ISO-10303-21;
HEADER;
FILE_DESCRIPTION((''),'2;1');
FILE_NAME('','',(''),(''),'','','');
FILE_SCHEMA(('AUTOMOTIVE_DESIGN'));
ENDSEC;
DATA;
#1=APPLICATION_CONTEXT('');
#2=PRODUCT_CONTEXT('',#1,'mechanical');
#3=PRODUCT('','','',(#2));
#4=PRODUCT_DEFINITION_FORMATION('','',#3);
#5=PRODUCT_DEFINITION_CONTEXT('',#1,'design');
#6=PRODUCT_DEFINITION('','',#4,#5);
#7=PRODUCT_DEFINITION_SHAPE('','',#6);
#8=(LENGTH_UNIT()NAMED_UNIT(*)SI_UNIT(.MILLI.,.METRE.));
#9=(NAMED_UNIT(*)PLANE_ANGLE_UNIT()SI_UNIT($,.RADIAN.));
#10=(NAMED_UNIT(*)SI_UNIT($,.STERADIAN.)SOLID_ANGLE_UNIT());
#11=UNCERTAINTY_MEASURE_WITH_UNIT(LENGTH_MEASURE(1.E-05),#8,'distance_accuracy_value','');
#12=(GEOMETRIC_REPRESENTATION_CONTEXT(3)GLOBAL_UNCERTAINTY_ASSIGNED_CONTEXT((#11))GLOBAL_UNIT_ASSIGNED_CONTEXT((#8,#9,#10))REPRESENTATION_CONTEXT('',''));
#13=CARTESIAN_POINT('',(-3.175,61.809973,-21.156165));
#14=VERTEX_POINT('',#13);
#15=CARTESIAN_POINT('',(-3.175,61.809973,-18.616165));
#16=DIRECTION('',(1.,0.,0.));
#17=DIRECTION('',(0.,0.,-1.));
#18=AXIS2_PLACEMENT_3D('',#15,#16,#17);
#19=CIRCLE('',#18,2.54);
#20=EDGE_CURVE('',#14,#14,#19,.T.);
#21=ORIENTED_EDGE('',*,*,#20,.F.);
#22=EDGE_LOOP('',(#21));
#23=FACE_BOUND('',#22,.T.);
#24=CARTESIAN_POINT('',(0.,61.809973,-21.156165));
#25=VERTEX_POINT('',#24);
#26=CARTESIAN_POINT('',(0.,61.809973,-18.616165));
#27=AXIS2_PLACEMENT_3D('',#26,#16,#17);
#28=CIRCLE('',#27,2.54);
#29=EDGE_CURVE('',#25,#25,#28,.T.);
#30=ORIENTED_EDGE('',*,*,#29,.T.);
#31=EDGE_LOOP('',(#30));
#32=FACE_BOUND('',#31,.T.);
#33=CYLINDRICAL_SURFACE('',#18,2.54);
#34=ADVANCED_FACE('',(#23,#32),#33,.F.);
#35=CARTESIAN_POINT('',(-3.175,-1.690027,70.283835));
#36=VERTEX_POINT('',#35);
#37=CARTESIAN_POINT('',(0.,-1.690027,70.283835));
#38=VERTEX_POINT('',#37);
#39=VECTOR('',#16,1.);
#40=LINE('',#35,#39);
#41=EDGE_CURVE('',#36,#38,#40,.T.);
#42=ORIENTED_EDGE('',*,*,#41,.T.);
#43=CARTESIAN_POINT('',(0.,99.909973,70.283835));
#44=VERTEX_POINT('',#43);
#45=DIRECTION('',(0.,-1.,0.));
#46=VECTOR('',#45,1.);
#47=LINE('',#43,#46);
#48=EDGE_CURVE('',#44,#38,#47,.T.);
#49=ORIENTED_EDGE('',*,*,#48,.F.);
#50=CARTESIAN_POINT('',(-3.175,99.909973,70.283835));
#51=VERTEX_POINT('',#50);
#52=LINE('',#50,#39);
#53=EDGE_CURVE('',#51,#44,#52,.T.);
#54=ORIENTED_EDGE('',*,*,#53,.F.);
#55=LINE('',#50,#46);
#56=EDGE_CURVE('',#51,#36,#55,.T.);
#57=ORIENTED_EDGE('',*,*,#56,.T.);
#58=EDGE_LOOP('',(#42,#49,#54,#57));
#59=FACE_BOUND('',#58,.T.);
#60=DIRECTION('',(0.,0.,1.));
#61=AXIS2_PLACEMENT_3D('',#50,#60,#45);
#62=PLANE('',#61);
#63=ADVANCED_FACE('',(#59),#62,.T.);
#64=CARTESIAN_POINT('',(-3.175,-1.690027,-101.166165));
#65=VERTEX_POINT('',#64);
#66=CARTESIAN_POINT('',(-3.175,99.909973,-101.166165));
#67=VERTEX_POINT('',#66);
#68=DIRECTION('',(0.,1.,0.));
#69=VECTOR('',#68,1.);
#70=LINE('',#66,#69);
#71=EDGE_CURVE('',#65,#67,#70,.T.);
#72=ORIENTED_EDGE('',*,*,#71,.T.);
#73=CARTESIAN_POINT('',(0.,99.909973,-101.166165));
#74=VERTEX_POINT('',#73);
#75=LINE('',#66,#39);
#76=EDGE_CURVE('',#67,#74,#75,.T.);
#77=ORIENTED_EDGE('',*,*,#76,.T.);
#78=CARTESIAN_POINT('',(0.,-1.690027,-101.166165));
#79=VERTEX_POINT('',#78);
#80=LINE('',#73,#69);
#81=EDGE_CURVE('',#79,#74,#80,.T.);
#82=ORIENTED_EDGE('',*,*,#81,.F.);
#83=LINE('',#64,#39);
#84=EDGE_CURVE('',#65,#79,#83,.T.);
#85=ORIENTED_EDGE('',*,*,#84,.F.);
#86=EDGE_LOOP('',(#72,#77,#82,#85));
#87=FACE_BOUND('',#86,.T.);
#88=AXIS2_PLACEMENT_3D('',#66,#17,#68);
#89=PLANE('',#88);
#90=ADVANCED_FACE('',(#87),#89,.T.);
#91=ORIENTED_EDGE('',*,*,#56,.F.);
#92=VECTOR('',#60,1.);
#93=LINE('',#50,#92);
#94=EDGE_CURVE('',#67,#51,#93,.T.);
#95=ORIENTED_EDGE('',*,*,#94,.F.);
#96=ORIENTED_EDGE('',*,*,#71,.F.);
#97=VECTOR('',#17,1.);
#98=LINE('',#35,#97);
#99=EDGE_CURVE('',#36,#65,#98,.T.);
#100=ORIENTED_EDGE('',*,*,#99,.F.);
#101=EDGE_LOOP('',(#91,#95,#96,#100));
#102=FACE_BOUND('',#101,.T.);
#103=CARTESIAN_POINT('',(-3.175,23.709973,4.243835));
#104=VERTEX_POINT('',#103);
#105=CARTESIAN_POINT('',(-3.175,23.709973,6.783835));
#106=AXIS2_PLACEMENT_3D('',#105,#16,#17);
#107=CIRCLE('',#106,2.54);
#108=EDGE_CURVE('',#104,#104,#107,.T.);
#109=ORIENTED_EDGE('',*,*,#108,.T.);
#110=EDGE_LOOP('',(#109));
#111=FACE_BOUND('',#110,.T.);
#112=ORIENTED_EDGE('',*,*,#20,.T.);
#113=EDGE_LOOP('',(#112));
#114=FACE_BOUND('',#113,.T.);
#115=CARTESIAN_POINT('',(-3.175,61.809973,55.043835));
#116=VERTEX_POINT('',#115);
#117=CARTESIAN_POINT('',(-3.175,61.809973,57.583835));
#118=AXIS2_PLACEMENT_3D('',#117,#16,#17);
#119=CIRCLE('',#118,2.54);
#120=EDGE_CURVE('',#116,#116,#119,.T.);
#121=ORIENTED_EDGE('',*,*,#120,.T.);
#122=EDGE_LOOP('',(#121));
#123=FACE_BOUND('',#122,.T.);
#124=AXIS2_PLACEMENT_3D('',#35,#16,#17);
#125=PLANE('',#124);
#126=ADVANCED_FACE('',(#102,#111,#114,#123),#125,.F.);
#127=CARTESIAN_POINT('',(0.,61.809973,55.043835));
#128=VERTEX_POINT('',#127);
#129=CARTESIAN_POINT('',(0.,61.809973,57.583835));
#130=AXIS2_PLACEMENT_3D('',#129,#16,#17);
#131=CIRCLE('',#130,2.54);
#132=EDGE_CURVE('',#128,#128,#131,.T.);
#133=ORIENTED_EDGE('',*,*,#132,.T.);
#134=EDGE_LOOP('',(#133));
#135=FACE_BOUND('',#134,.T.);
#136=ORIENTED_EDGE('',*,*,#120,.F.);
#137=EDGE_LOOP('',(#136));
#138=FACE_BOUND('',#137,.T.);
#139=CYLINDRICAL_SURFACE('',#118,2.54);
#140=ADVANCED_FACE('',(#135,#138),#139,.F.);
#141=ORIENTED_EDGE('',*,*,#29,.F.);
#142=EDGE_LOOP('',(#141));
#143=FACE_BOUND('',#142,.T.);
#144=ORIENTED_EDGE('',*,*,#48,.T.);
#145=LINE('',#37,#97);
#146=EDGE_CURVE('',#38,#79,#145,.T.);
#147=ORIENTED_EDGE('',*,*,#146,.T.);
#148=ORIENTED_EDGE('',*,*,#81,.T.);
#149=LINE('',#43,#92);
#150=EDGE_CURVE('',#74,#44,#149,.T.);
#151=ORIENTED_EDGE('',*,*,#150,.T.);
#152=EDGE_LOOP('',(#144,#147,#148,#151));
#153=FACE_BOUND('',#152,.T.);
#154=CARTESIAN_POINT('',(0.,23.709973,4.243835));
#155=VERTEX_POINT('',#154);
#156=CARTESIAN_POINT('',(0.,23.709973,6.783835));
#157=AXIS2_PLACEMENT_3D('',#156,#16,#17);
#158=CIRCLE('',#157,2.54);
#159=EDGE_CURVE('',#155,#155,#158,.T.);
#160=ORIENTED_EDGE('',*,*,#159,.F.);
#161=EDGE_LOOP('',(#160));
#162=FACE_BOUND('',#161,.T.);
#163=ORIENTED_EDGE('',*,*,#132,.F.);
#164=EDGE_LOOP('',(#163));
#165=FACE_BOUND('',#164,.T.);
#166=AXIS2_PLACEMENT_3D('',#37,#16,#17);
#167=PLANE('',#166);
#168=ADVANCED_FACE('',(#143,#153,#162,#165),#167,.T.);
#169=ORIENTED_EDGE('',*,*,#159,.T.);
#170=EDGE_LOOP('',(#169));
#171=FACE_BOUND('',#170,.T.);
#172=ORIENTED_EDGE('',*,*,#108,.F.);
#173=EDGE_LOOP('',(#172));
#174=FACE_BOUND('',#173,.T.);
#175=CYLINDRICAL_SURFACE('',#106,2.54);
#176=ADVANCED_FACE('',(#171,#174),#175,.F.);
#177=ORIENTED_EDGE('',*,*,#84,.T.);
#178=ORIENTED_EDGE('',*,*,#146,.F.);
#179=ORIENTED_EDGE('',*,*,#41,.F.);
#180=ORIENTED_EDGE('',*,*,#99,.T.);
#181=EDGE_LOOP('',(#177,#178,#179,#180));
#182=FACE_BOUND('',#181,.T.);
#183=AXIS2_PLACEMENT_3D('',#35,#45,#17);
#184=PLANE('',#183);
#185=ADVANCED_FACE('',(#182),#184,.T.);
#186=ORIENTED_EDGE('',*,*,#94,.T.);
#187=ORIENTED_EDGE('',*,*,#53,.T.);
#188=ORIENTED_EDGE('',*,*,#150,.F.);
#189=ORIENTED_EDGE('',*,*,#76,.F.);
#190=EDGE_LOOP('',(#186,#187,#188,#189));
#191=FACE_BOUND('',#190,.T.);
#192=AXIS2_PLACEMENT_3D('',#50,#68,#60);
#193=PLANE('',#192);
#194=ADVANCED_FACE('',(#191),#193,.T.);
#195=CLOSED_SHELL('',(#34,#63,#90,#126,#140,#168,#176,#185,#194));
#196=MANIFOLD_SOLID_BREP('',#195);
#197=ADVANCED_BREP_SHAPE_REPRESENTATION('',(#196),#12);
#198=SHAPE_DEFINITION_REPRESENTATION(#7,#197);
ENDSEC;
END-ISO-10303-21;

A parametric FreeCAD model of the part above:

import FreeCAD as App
import Part
import Sketcher
Q = App.Units.Quantity


def add_polygon(sketch, points):
    """Adds a closed chain of lines whose ends are joined by coincident constraints."""
    first, n = sketch.GeometryCount, len(points)
    for a, b in zip(points, points[1:] + points[:1]):
        sketch.addGeometry(Part.LineSegment(App.Vector(*a, 0), App.Vector(*b, 0)), False)
    for i in range(n):
        sketch.addConstraint(Sketcher.Constraint("Coincident", first + i, 2, first + (i + 1) % n, 1))

doc = App.newDocument("Part")
body = doc.addObject("PartDesign::Body", "Body")

# Sketch on YZ plane
sketch1 = doc.addObject("Sketcher::SketchObject", "Sketch")
body.addObject(sketch1)
sketch1.AttachmentSupport = (doc.YZ_Plane, [""])
sketch1.MapMode = "FlatFace"
add_polygon(sketch1, [(99.909973, 70.283835), (-1.690027, 70.283835), (-1.690027, -101.166165), (99.909973, -101.166165)])  # lines 0-3
sketch1.addGeometry(Part.Circle(App.Vector(23.709973, 6.783835, 0), App.Vector(0, 0, 1), 2.54), False)  # 4
sketch1.addGeometry(Part.Circle(App.Vector(61.809973, 57.583835, 0), App.Vector(0, 0, 1), 2.54), False)  # 5
sketch1.addGeometry(Part.Circle(App.Vector(61.809973, -18.616165, 0), App.Vector(0, 0, 1), 2.54), False)  # 6
sketch1.addConstraint([
    Sketcher.Constraint("Horizontal", 0),
    Sketcher.Constraint("Vertical", 1),
    Sketcher.Constraint("Horizontal", 2),
    Sketcher.Constraint("Vertical", 3),
    Sketcher.Constraint("Equal", 4, 5),
    Sketcher.Constraint("Equal", 5, 6),
    Sketcher.Constraint("Vertical", 5, 3, 6, 3),
    Sketcher.Constraint("Diameter", 4, Q("0.2 in")),
    Sketcher.Constraint("DistanceX", 0, 2, 0, 1, Q("4 in")),
    Sketcher.Constraint("DistanceY", 4, 3, 5, 3, Q("2 in")),
    Sketcher.Constraint("DistanceY", 6, 3, 4, 3, Q("1 in")),
    Sketcher.Constraint("DistanceX", 0, 2, 4, 3, Q("1 in")),
    Sketcher.Constraint("DistanceY", 1, 2, 1, 1, Q("6.75 in")),
    Sketcher.Constraint("DistanceX", 4, 3, 5, 3, Q("1.5 in")),
    Sketcher.Constraint("DistanceY", 5, 3, 0, 2, Q("0.5 in")),
    Sketcher.Constraint("DistanceX", -1, 1, 4, 3, 23.709973),
    Sketcher.Constraint("DistanceY", -1, 1, 4, 3, 6.783835),
])
pad1 = doc.addObject("PartDesign::Pad", "Pad")
body.addObject(pad1)
pad1.Profile = sketch1
pad1.Length = Q("0.125 in")
pad1.Reversed = True

doc.recompute()
